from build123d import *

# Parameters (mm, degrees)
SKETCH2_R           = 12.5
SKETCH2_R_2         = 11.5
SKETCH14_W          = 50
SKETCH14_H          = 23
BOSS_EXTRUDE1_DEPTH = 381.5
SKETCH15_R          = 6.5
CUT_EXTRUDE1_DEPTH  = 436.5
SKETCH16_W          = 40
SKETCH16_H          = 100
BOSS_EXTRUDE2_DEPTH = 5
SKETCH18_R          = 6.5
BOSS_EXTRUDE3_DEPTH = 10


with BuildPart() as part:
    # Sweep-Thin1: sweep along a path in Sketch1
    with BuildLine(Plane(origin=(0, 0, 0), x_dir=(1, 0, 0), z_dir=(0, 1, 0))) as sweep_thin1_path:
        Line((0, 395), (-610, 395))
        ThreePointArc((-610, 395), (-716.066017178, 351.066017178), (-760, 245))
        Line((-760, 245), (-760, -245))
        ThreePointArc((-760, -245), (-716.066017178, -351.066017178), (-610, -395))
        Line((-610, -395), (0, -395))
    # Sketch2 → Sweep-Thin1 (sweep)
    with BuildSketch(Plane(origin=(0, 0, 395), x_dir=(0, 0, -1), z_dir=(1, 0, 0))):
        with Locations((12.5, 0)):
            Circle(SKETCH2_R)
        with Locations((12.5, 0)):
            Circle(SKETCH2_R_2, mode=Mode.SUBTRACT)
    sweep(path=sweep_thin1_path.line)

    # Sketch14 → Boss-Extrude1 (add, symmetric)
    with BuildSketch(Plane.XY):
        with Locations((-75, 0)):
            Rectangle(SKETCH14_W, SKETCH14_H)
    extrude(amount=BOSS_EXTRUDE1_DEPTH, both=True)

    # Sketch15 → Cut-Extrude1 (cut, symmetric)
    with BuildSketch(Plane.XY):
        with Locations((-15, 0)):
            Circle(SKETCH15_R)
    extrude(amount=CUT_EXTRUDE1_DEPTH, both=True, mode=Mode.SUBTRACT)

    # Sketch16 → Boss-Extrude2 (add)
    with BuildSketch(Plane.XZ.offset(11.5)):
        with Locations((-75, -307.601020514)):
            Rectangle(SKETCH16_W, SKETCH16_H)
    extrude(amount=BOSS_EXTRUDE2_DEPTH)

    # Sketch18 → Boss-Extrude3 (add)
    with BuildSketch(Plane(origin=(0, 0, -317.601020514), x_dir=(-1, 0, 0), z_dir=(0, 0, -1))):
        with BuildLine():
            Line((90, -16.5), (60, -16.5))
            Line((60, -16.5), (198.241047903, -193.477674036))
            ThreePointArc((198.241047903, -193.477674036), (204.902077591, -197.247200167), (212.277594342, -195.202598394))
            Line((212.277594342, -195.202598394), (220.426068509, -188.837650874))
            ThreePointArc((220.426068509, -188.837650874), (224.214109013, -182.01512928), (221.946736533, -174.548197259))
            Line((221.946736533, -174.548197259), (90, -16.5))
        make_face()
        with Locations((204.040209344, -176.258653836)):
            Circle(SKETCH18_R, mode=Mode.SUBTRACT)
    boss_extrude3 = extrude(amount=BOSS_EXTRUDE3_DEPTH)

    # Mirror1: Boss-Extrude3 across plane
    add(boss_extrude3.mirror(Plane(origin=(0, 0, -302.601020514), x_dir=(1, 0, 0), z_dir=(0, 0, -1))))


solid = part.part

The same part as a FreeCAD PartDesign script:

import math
import FreeCAD as App
import Part
import Sketcher

V = App.Vector
Q = App.Units.Quantity

doc = App.newDocument("Part")
body = doc.addObject("PartDesign::Body", "Body")

# Sketch on YZ plane
sketch1 = body.newObject("Sketcher::SketchObject", "Sketch")
sketch1.AttachmentSupport = (doc.getObject("YZ_Plane"), [""])
sketch1.MapMode = "FlatFace"
sketch1.addGeometry(Part.Circle(V(0, 382, 0), V(0, 0, 1), 12), False)
sketch1.addGeometry(Part.Circle(V(0, 382, 0), V(0, 0, 1), 12), False)
sketch1.addConstraint(Sketcher.Constraint("Coincident", 1, 3, 0, 3))
sketch1.addConstraint(Sketcher.Constraint("PointOnObject", 0, 3, -2))
sketch1.addConstraint(Sketcher.Constraint("Diameter", 0, Q("25 mm")))
sketch1.addConstraint(Sketcher.Constraint("Diameter", 1, Q("23 mm")))
sketch1.addConstraint(Sketcher.Constraint("DistanceY", -1, 1, 0, 3, Q("382.5 mm")))

# Sketch on XZ plane
sketch2 = body.newObject("Sketcher::SketchObject", "Sketch001")
sketch2.AttachmentSupport = (doc.getObject("XZ_Plane"), [""])
sketch2.MapMode = "FlatFace"
sketch2.addGeometry(Part.LineSegment(V(0, -395, 0), V(-610, -395, 0)), False)
sketch2.addGeometry(Part.ArcOfCircle(Part.Circle(V(-610, -245, 0), V(0, 0, 1), 150), math.radians(180), math.radians(270)), False)
sketch2.addGeometry(Part.LineSegment(V(-760, -245, 0), V(-760, 245, 0)), False)
sketch2.addGeometry(Part.ArcOfCircle(Part.Circle(V(-610, 245, 0), V(0, 0, 1), 150), math.radians(90), math.radians(180)), False)
sketch2.addGeometry(Part.LineSegment(V(-610, 395, 0), V(0, 395, 0)), False)
sketch2.addConstraint(Sketcher.Constraint("Tangent", 0, 2, 1, 2))
sketch2.addConstraint(Sketcher.Constraint("Tangent", 1, 1, 2, 1))
sketch2.addConstraint(Sketcher.Constraint("Tangent", 2, 2, 3, 2))
sketch2.addConstraint(Sketcher.Constraint("Tangent", 3, 1, 4, 1))
sketch2.addConstraint(Sketcher.Constraint("Horizontal", 0))
sketch2.addConstraint(Sketcher.Constraint("Vertical", 2))
sketch2.addConstraint(Sketcher.Constraint("Horizontal", 4))
sketch2.addConstraint(Sketcher.Constraint("Equal", 1, 3))
sketch2.addConstraint(Sketcher.Constraint("Symmetric", 0, 1, 4, 2, -1, 1))
sketch2.addConstraint(Sketcher.Constraint("PointOnObject", 0, 1, -2))
sketch2.addConstraint(Sketcher.Constraint("Radius", 1, Q("150 mm")))
sketch2.addConstraint(Sketcher.Constraint("DistanceX", 0, 2, 0, 1, Q("610 mm")))
sketch2.addConstraint(Sketcher.Constraint("DistanceY", 2, 1, 2, 2, Q("490 mm")))
doc.recompute()

additivepipe = body.newObject("PartDesign::AdditivePipe", "AdditivePipe")
additivepipe.Profile = sketch1
additivepipe.Spine = (sketch2, ["Edge1", "Edge2", "Edge3", "Edge4", "Edge5"])

# Sketch on XY plane
sketch3 = body.newObject("Sketcher::SketchObject", "Sketch002")
sketch3.AttachmentSupport = (doc.getObject("XY_Plane"), [""])
sketch3.MapMode = "FlatFace"
sketch3.addGeometry(Part.LineSegment(V(-100, 12, 0), V(-100, -12, 0)), False)
sketch3.addGeometry(Part.LineSegment(V(-100, -12, 0), V(-50, -12, 0)), False)
sketch3.addGeometry(Part.LineSegment(V(-50, -12, 0), V(-50, 12, 0)), False)
sketch3.addGeometry(Part.LineSegment(V(-50, 12, 0), V(-100, 12, 0)), False)
sketch3.addConstraint(Sketcher.Constraint("Coincident", 0, 2, 1, 1))
sketch3.addConstraint(Sketcher.Constraint("Coincident", 1, 2, 2, 1))
sketch3.addConstraint(Sketcher.Constraint("Coincident", 2, 2, 3, 1))
sketch3.addConstraint(Sketcher.Constraint("Coincident", 3, 2, 0, 1))
sketch3.addConstraint(Sketcher.Constraint("Vertical", 0))
sketch3.addConstraint(Sketcher.Constraint("Horizontal", 1))
sketch3.addConstraint(Sketcher.Constraint("Vertical", 2))
sketch3.addConstraint(Sketcher.Constraint("Horizontal", 3))
sketch3.addConstraint(Sketcher.Constraint("DistanceX", 1, 1, 1, 2, Q("50 mm")))
sketch3.addConstraint(Sketcher.Constraint("DistanceY", 0, 2, 0, 1, Q("23 mm")))
sketch3.addConstraint(Sketcher.Constraint("DistanceX", 0, 2, -1, 1, Q("100 mm")))
sketch3.addConstraint(Sketcher.Constraint("DistanceY", 0, 2, -1, 1, Q("11.5 mm")))
pad1 = body.newObject("PartDesign::Pad", "Pad")
pad1.Profile = sketch3
pad1.Length = 763
pad1.Midplane = True

# Sketch on XY plane
sketch4 = body.newObject("Sketcher::SketchObject", "Sketch003")
sketch4.AttachmentSupport = (doc.getObject("XY_Plane"), [""])
sketch4.MapMode = "FlatFace"
sketch4.addGeometry(Part.Circle(V(-15, 0, 0), V(0, 0, 1), 6), False)
sketch4.addConstraint(Sketcher.Constraint("PointOnObject", 0, 3, -1))
sketch4.addConstraint(Sketcher.Constraint("Diameter", 0, Q("13 mm")))
sketch4.addConstraint(Sketcher.Constraint("DistanceX", 0, 3, -1, 1, Q("15 mm")))
pocket1 = body.newObject("PartDesign::Pocket", "Pocket")
pocket1.Profile = sketch4
pocket1.Length = 873
pocket1.Midplane = True

# Sketch on XZ plane
sketch5 = body.newObject("Sketcher::SketchObject", "Sketch004")
sketch5.AttachmentSupport = (doc.getObject("XZ_Plane"), [""])
sketch5.MapMode = "FlatFace"
sketch5.AttachmentOffset = App.Placement(V(0, 0, 11.5), App.Rotation())
sketch5.addGeometry(Part.LineSegment(V(-95, -258, 0), V(-95, -358, 0)), False)
sketch5.addGeometry(Part.LineSegment(V(-95, -358, 0), V(-55, -358, 0)), False)
sketch5.addGeometry(Part.LineSegment(V(-55, -358, 0), V(-55, -258, 0)), False)
sketch5.addGeometry(Part.LineSegment(V(-55, -258, 0), V(-95, -258, 0)), False)
sketch5.addConstraint(Sketcher.Constraint("Coincident", 0, 2, 1, 1))
sketch5.addConstraint(Sketcher.Constraint("Coincident", 1, 2, 2, 1))
sketch5.addConstraint(Sketcher.Constraint("Coincident", 2, 2, 3, 1))
sketch5.addConstraint(Sketcher.Constraint("Coincident", 3, 2, 0, 1))
sketch5.addConstraint(Sketcher.Constraint("Vertical", 0))
sketch5.addConstraint(Sketcher.Constraint("Horizontal", 1))
sketch5.addConstraint(Sketcher.Constraint("Vertical", 2))
sketch5.addConstraint(Sketcher.Constraint("Horizontal", 3))
sketch5.addConstraint(Sketcher.Constraint("DistanceX", 1, 1, 1, 2, Q("40 mm")))
sketch5.addConstraint(Sketcher.Constraint("DistanceY", 0, 2, 0, 1, Q("100 mm")))
sketch5.addConstraint(Sketcher.Constraint("DistanceX", 0, 2, -1, 1, Q("95 mm")))
sketch5.addConstraint(Sketcher.Constraint("DistanceY", 0, 2, -1, 1, Q("357.601021 mm")))
pad2 = body.newObject("PartDesign::Pad", "Pad001")
pad2.Profile = sketch5
pad2.Length = 5

# Sketch on XY plane
sketch6 = body.newObject("Sketcher::SketchObject", "Sketch005")
sketch6.AttachmentSupport = (doc.getObject("XY_Plane"), [""])
sketch6.MapMode = "FlatFace"
sketch6.AttachmentOffset = App.Placement(V(0, 0, -317.601021), App.Rotation())
sketch6.addGeometry(Part.LineSegment(V(-90, -16, 0), V(-60, -16, 0)), False)
sketch6.addGeometry(Part.LineSegment(V(-60, -16, 0), V(-198, -193, 0)), False)
sketch6.addGeometry(Part.ArcOfCircle(Part.Circle(V(-206, -187, 0), V(0, 0, 1), 10), math.radians(-128), math.radians(-38)), False)
sketch6.addGeometry(Part.LineSegment(V(-212, -195, 0), V(-220, -189, 0)), False)
sketch6.addGeometry(Part.ArcOfCircle(Part.Circle(V(-214, -181, 0), V(0, 0, 1), 10), math.radians(140), math.radians(232)), False)
sketch6.addGeometry(Part.LineSegment(V(-222, -175, 0), V(-90, -16, 0)), False)
sketch6.addGeometry(Part.Circle(V(-204, -176, 0), V(0, 0, 1), 6), False)
sketch6.addConstraint(Sketcher.Constraint("Coincident", 0, 2, 1, 1))
sketch6.addConstraint(Sketcher.Constraint("Tangent", 1, 2, 2, 2))
sketch6.addConstraint(Sketcher.Constraint("Tangent", 2, 1, 3, 1))
sketch6.addConstraint(Sketcher.Constraint("Tangent", 3, 2, 4, 2))
sketch6.addConstraint(Sketcher.Constraint("Tangent", 4, 1, 5, 1))
sketch6.addConstraint(Sketcher.Constraint("Coincident", 5, 2, 0, 1))
sketch6.addConstraint(Sketcher.Constraint("Horizontal", 0))
sketch6.addConstraint(Sketcher.Constraint("Equal", 2, 4))
sketch6.addConstraint(Sketcher.Constraint("Perpendicular", 1, 3))
sketch6.addConstraint(Sketcher.Constraint("Diameter", 6, Q("13 mm")))
sketch6.addConstraint(Sketcher.Constraint("Radius", 2, Q("10 mm")))
sketch6.addConstraint(Sketcher.Constraint("DistanceX", 0, 1, 0, 2, Q("30 mm")))
sketch6.addConstraint(Sketcher.Constraint("DistanceX", 0, 2, -1, 1, Q("60 mm")))
sketch6.addConstraint(Sketcher.Constraint("DistanceY", 0, 2, -1, 1, Q("16.5 mm")))
sketch6.addConstraint(Sketcher.Constraint("Distance", 1, Q("224.569999 mm")))
sketch6.addConstraint(Sketcher.Constraint("DistanceY", 2, 1, -1, 1, Q("195.202598 mm")))
sketch6.addConstraint(Sketcher.Constraint("DistanceY", 2, 1, 4, 1, Q("20.654401 mm")))
sketch6.addConstraint(Sketcher.Constraint("DistanceX", 6, 3, -1, 1, Q("204.040209 mm")))
sketch6.addConstraint(Sketcher.Constraint("DistanceY", 4, 3, 6, 3, Q("4.698262 mm")))
pad3 = body.newObject("PartDesign::Pad", "Pad002")
pad3.Profile = sketch6
pad3.Length = 10
pad3.Reversed = True
doc.recompute()

datumplane = body.newObject("PartDesign::Plane", "DatumPlane")
datumplane.AttachmentSupport = (doc.getObject("XY_Plane"), [""])
datumplane.MapMode = "FlatFace"
datumplane.AttachmentOffset = App.Placement(V(0, 0, -302.601021), App.Rotation())
mirrored = body.newObject("PartDesign::Mirrored", "Mirrored")
mirrored.Originals = [pad3]
mirrored.MirrorPlane = (datumplane, [""])
body.Tip = mirrored

doc.recompute()
